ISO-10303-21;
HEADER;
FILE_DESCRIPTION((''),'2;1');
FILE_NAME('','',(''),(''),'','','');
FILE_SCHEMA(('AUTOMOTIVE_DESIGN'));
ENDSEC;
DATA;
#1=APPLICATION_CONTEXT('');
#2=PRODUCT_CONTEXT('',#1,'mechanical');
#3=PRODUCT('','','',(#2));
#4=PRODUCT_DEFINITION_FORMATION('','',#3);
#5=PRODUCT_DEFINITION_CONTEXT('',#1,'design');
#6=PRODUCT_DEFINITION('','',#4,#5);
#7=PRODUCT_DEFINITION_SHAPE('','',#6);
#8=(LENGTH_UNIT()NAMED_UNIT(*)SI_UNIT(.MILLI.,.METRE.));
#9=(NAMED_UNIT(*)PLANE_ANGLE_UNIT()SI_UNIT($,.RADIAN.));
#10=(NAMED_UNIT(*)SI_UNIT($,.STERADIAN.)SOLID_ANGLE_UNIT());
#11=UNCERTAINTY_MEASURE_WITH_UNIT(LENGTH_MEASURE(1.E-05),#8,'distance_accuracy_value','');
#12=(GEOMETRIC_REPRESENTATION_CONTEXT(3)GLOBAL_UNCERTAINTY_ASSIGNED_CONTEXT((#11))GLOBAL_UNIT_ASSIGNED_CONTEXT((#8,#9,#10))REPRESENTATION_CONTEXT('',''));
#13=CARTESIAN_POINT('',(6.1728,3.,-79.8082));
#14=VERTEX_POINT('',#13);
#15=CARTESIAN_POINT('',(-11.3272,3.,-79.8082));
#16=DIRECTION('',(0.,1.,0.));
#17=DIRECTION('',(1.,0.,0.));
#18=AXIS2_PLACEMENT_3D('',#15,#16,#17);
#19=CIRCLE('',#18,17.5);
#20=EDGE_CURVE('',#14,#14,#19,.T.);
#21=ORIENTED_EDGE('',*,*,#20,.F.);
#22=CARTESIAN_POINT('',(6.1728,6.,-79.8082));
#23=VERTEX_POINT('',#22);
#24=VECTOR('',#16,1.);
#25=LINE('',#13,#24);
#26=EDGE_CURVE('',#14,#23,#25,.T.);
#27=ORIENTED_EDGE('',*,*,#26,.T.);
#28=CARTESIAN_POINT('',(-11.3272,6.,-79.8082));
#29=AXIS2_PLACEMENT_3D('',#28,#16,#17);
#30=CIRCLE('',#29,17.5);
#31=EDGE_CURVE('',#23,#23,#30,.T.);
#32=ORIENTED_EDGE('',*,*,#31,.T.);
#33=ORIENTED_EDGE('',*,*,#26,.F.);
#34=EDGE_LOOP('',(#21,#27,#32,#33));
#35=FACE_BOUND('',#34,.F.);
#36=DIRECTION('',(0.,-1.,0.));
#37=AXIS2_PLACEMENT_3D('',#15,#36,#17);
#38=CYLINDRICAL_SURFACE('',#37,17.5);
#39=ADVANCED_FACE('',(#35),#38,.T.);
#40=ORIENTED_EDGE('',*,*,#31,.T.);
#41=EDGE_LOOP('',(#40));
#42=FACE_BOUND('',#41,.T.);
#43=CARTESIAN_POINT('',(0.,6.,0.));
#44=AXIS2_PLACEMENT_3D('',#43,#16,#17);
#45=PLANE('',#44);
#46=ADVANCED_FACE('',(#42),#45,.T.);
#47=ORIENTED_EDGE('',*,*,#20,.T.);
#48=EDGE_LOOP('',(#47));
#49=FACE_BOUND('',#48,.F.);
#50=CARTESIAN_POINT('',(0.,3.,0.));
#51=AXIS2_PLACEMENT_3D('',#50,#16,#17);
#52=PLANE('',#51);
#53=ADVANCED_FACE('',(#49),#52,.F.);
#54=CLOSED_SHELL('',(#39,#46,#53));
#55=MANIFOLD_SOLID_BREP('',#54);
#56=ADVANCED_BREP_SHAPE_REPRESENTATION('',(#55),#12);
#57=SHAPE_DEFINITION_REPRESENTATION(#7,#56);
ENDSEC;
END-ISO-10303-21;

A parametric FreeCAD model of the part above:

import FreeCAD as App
import Part
import Sketcher

V = App.Vector

doc = App.newDocument("Part")
body = doc.addObject("PartDesign::Body", "Body")

# Sketch on XZ plane
sketch1 = body.newObject("Sketcher::SketchObject", "Sketch")
sketch1.AttachmentSupport = (doc.getObject("XZ_Plane"), [""])
sketch1.MapMode = "FlatFace"
sketch1.AttachmentOffset = App.Placement(V(0, 0, -3), App.Rotation())
sketch1.addGeometry(Part.Circle(V(-11.3272, -79.8082, 0), V(0, 0, 1), 17.5), False)
sketch1.addConstraint([
    Sketcher.Constraint("Diameter", 0, 35.0),
    Sketcher.Constraint("DistanceX", 0, 3, -1, 1, 11.3272),
    Sketcher.Constraint("DistanceY", 0, 3, -1, 1, 79.8082),
])
pad1 = body.newObject("PartDesign::Pad", "Pad")
pad1.Profile = sketch1
pad1.Length = 3
pad1.Reversed = True

doc.recompute()
